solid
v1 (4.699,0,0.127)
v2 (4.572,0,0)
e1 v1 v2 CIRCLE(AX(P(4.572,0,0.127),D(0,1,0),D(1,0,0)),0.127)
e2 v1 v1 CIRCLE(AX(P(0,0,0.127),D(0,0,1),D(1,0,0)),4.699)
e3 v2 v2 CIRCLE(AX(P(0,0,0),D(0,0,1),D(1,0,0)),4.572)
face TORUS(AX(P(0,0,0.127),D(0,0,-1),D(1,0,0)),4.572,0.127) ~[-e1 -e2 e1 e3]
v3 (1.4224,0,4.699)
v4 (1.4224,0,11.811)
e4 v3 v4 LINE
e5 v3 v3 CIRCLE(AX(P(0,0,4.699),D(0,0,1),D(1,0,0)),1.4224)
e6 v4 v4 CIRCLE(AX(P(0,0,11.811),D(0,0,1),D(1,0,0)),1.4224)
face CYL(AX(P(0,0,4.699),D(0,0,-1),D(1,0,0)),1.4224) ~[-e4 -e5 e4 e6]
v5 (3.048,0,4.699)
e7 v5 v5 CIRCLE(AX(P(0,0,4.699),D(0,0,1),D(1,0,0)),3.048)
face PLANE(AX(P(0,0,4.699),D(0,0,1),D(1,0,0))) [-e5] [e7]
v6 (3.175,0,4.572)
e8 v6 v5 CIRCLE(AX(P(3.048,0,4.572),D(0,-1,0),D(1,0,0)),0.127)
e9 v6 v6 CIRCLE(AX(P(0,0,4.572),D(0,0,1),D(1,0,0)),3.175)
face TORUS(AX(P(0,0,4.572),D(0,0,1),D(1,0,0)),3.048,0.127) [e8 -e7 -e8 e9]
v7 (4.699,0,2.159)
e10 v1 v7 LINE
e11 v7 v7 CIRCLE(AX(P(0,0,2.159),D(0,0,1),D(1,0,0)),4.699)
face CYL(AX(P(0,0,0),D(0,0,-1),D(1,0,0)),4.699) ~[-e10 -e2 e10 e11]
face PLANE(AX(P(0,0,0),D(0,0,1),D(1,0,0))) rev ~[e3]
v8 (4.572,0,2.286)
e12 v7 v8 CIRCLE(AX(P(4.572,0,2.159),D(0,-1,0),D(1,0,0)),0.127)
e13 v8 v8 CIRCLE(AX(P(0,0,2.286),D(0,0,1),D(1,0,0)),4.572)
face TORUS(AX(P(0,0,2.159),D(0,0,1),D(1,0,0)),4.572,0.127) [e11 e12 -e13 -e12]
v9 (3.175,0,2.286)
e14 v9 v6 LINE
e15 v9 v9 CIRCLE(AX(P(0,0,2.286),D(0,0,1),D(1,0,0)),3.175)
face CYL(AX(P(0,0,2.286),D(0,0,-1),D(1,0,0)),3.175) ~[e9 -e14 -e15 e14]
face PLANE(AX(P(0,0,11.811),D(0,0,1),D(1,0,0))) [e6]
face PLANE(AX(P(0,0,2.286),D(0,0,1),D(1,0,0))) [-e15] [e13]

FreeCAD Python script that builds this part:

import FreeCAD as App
import Part
import Sketcher
Q = App.Units.Quantity


def edges_at(feature, points):
    """Names of the edges that pass closest to the given points."""
    edges = feature.Shape.Edges
    near = lambda p: min(range(len(edges)), key=lambda i: edges[i].distToShape(Part.Vertex(*p))[0])
    return sorted({f"Edge{near(p) + 1}" for p in points})

doc = App.newDocument("Part")
body = doc.addObject("PartDesign::Body", "Body")

sketch1 = body.newObject("Sketcher::SketchObject", "Sketch")
sketch1.AttachmentSupport = (doc.getObject("XY_Plane"), [""])
sketch1.MapMode = "FlatFace"
sketch1.addGeometry(Part.Circle(App.Vector(0, 0, 0), App.Vector(0, 0, 1), 4.7), False)
sketch1.addConstraint([
    Sketcher.Constraint("Coincident", 0, 3, -1, 1),
    Sketcher.Constraint("Diameter", 0, Q("0.37 in")),
])
pad1 = body.newObject("PartDesign::Pad", "Pad")
pad1.Profile = sketch1
pad1.Length = Q("0.09 in")

sketch2 = body.newObject("Sketcher::SketchObject", "Sketch001")
sketch2.AttachmentSupport = (doc.getObject("XY_Plane"), [""])
sketch2.MapMode = "FlatFace"
sketch2.AttachmentOffset = App.Placement(App.Vector(0, 0, 0.09 * 25.4), App.Rotation())
sketch2.addGeometry(Part.Circle(App.Vector(0, 0, 0), App.Vector(0, 0, 1), 3.2), False)
sketch2.addConstraint([
    Sketcher.Constraint("Coincident", 0, 3, -1, 1),
    Sketcher.Constraint("Diameter", 0, Q("0.25 in")),
])
pad2 = body.newObject("PartDesign::Pad", "Pad001")
pad2.Profile = sketch2
pad2.Length = Q("0.095 in")

sketch3 = body.newObject("Sketcher::SketchObject", "Sketch002")
sketch3.AttachmentSupport = (doc.getObject("XY_Plane"), [""])
sketch3.MapMode = "FlatFace"
sketch3.AttachmentOffset = App.Placement(App.Vector(0, 0, 0.185 * 25.4), App.Rotation())
sketch3.addGeometry(Part.Circle(App.Vector(0, 0, 0), App.Vector(0, 0, 1), 1.4), False)
sketch3.addConstraint([
    Sketcher.Constraint("Coincident", 0, 3, -1, 1),
    Sketcher.Constraint("Diameter", 0, Q("0.112 in")),
])
pad3 = body.newObject("PartDesign::Pad", "Pad002")
pad3.Profile = sketch3
pad3.Length = Q("0.28 in")
doc.recompute()

fillet = body.newObject("PartDesign::Fillet", "Fillet")
fillet.Base = (pad3, edges_at(pad3, [(-4.699, 0, 0)]))
fillet.Radius = Q("0.005 in")
doc.recompute()

fillet2 = body.newObject("PartDesign::Fillet", "Fillet001")
fillet2.Base = (fillet, edges_at(fillet, [(-4.699, 0, 2.286)]))
fillet2.Radius = Q("0.005 in")
doc.recompute()

fillet3 = body.newObject("PartDesign::Fillet", "Fillet002")
fillet3.Base = (fillet2, edges_at(fillet2, [(-3.175, 0, 4.699)]))
fillet3.Radius = Q("0.005 in")

doc.recompute()
